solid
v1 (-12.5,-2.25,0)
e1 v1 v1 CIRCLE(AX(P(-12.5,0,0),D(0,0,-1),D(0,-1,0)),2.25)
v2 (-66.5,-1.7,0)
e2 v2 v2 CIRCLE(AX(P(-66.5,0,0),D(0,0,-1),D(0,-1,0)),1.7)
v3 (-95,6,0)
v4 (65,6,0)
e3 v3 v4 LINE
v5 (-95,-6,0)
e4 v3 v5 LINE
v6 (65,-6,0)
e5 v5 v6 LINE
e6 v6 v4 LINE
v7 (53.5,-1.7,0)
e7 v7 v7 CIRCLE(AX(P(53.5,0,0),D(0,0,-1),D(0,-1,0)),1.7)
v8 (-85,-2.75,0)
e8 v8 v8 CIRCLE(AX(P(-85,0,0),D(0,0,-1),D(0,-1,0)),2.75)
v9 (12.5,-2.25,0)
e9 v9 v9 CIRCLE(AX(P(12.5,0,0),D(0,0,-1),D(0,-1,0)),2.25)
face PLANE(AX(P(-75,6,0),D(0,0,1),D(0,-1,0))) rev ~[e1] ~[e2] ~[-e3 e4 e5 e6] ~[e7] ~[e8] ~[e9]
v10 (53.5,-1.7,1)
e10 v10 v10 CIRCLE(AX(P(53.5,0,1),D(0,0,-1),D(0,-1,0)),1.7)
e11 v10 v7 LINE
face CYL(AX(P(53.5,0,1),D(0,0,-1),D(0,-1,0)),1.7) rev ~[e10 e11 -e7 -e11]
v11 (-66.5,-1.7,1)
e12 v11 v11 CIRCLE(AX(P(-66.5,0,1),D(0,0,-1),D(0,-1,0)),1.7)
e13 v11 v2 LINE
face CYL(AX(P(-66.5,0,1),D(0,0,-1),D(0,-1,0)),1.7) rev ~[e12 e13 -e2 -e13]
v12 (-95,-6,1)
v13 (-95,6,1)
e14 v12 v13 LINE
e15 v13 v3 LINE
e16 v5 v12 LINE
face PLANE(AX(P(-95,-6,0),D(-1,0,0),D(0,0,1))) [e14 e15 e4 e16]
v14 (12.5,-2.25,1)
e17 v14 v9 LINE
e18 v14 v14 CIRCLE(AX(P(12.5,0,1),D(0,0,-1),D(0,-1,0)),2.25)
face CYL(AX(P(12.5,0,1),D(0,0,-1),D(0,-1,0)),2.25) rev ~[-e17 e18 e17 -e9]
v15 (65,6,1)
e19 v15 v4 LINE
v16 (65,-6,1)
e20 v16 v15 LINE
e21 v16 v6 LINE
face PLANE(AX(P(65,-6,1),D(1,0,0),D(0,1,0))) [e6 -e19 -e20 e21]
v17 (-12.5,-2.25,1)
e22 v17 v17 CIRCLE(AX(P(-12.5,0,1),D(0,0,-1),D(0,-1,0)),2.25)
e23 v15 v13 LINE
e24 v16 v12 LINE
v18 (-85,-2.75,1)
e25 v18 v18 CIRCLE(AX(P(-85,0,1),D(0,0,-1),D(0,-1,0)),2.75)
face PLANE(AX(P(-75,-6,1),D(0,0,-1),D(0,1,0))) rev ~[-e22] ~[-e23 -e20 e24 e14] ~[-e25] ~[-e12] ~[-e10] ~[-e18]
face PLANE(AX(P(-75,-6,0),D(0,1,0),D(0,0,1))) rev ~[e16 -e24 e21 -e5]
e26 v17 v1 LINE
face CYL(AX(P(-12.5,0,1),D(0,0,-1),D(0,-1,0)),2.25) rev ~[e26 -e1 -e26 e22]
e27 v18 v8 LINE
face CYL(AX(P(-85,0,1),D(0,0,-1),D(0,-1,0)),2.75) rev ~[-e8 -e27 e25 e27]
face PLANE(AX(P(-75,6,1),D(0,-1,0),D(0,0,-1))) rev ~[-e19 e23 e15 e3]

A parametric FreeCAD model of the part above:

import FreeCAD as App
import Part
import Sketcher
from FreeCAD import Vector
Q = App.Units.Quantity


def add_polygon(sketch, points):
    """Adds a closed chain of lines whose ends are joined by coincident constraints."""
    first, n = sketch.GeometryCount, len(points)
    for a, b in zip(points, points[1:] + points[:1]):
        sketch.addGeometry(Part.LineSegment(App.Vector(*a, 0), App.Vector(*b, 0)), False)
    for i in range(n):
        sketch.addConstraint(Sketcher.Constraint("Coincident", first + i, 2, first + (i + 1) % n, 1))

doc = App.newDocument("Part")
body = doc.addObject("PartDesign::Body", "Body")

sketch1 = doc.addObject("Sketcher::SketchObject", "Sketch")
body.addObject(sketch1)
sketch1.AttachmentSupport = (doc.XY_Plane, [""])
sketch1.MapMode = "FlatFace"
add_polygon(sketch1, [(-75, 6), (-75, -6), (75, -6), (75, 6)])
sketch1.addConstraint(Sketcher.Constraint("Vertical", 0))
sketch1.addConstraint(Sketcher.Constraint("Horizontal", 1))
sketch1.addConstraint(Sketcher.Constraint("Vertical", 2))
sketch1.addConstraint(Sketcher.Constraint("Horizontal", 3))
sketch1.addConstraint(Sketcher.Constraint("Symmetric", 0, 2, 2, 2, -1, 1))
sketch1.addConstraint(Sketcher.Constraint("DistanceX", 1, 1, 1, 2, Q("150 mm")))
sketch1.addConstraint(Sketcher.Constraint("DistanceY", 0, 2, 0, 1, Q("12 mm")))
pad1 = doc.addObject("PartDesign::Pad", "Pad")
body.addObject(pad1)
pad1.Profile = sketch1
pad1.Length = 1

sketch2 = doc.addObject("Sketcher::SketchObject", "Sketch001")
body.addObject(sketch2)
sketch2.AttachmentSupport = (doc.XY_Plane, [""])
sketch2.MapMode = "FlatFace"
sketch2.AttachmentOffset = App.Placement(Vector(0, 0, 1), App.Rotation())
sketch2.addGeometry(Part.Circle(Vector(-66.5, 0, 0), Vector(0, 0, 1), 1.7), False)
sketch2.addGeometry(Part.Circle(Vector(53.5, 0, 0), Vector(0, 0, 1), 1.7), False)
sketch2.addConstraint(Sketcher.Constraint("Equal", 0, 1))
sketch2.addConstraint(Sketcher.Constraint("PointOnObject", 0, 3, -1))
sketch2.addConstraint(Sketcher.Constraint("PointOnObject", 1, 3, -1))
sketch2.addConstraint(Sketcher.Constraint("Diameter", 0, Q("3.4 mm")))
sketch2.addConstraint(Sketcher.Constraint("DistanceX", 0, 3, 1, 3, Q("120 mm")))
sketch2.addConstraint(Sketcher.Constraint("DistanceX", 0, 3, -1, 1, Q("66.5 mm")))
doc.recompute()
hole = doc.addObject("PartDesign::Hole", "Hole")
body.addObject(hole)
hole.Profile = sketch2
hole.ThreadType = "None"
hole.Diameter = 3.4
hole.DepthType = "Dimension"
hole.Depth = 8
hole.DrillPoint = "Angled"
hole.DrillPointAngle = 118

sketch3 = doc.addObject("Sketcher::SketchObject", "Sketch002")
body.addObject(sketch3)
sketch3.AttachmentSupport = (doc.XY_Plane, [""])
sketch3.MapMode = "FlatFace"
sketch3.AttachmentOffset = App.Placement(Vector(0, 0, 1), App.Rotation())
sketch3.addGeometry(Part.Circle(Vector(-12.5, 0, 0), Vector(0, 0, 1), 2.2), False)
sketch3.addGeometry(Part.Circle(Vector(12.5, 0, 0), Vector(0, 0, 1), 2.2), False)
sketch3.addConstraint(Sketcher.Constraint("Equal", 0, 1))
sketch3.addConstraint(Sketcher.Constraint("Symmetric", 0, 3, 1, 3, -1, 1))
sketch3.addConstraint(Sketcher.Constraint("PointOnObject", 0, 3, -1))
sketch3.addConstraint(Sketcher.Constraint("Diameter", 0, Q("4.5 mm")))
sketch3.addConstraint(Sketcher.Constraint("DistanceX", 0, 3, 1, 3, Q("25 mm")))
doc.recompute()
hole2 = doc.addObject("PartDesign::Hole", "Hole001")
body.addObject(hole2)
hole2.Profile = sketch3
hole2.ThreadType = "None"
hole2.Diameter = 4.5
hole2.DepthType = "Dimension"
hole2.Depth = 8
hole2.DrillPoint = "Angled"
hole2.DrillPointAngle = 118

sketch4 = doc.addObject("Sketcher::SketchObject", "Sketch003")
body.addObject(sketch4)
sketch4.AttachmentSupport = (doc.YZ_Plane, [""])
sketch4.MapMode = "FlatFace"
sketch4.AttachmentOffset = App.Placement(Vector(0, 0, -75), App.Rotation())
add_polygon(sketch4, [(-6, 0), (-6, 1), (6, 1), (6, 0)])
sketch4.addConstraint(Sketcher.Constraint("Vertical", 0))
sketch4.addConstraint(Sketcher.Constraint("Horizontal", 1))
sketch4.addConstraint(Sketcher.Constraint("Vertical", 2))
sketch4.addConstraint(Sketcher.Constraint("Horizontal", 3))
sketch4.addConstraint(Sketcher.Constraint("Symmetric", 2, 2, 3, 2, -1, 1))
sketch4.addConstraint(Sketcher.Constraint("DistanceX", 1, 1, 1, 2, Q("12 mm")))
sketch4.addConstraint(Sketcher.Constraint("DistanceY", 0, 1, 0, 2, Q("1 mm")))
pad2 = doc.addObject("PartDesign::Pad", "Pad001")
body.addObject(pad2)
pad2.Profile = sketch4
pad2.Length = 20
pad2.Reversed = True

sketch5 = doc.addObject("Sketcher::SketchObject", "Sketch004")
body.addObject(sketch5)
sketch5.AttachmentSupport = (doc.XY_Plane, [""])
sketch5.MapMode = "FlatFace"
sketch5.AttachmentOffset = App.Placement(Vector(0, 0, 1), App.Rotation())
sketch5.addGeometry(Part.Circle(Vector(-85, 0, 0), Vector(0, 0, 1), 2.8), False)
sketch5.addConstraint(Sketcher.Constraint("PointOnObject", 0, 3, -1))
sketch5.addConstraint(Sketcher.Constraint("Diameter", 0, Q("5.5 mm")))
sketch5.addConstraint(Sketcher.Constraint("DistanceX", 0, 3, -1, 1, Q("85 mm")))
doc.recompute()
hole3 = doc.addObject("PartDesign::Hole", "Hole002")
body.addObject(hole3)
hole3.Profile = sketch5
hole3.ThreadType = "None"
hole3.Diameter = 5.5
hole3.DepthType = "Dimension"
hole3.Depth = 8
hole3.DrillPoint = "Angled"
hole3.DrillPointAngle = 118

sketch6 = doc.addObject("Sketcher::SketchObject", "Sketch005")
body.addObject(sketch6)
sketch6.AttachmentSupport = (doc.XY_Plane, [""])
sketch6.MapMode = "FlatFace"
sketch6.AttachmentOffset = App.Placement(Vector(0, 0, 1), App.Rotation())
add_polygon(sketch6, [(65, -6), (75, -6), (75, 6), (65, 6)])
sketch6.addConstraint(Sketcher.Constraint("Horizontal", 0))
sketch6.addConstraint(Sketcher.Constraint("Vertical", 1))
sketch6.addConstraint(Sketcher.Constraint("Horizontal", 2))
sketch6.addConstraint(Sketcher.Constraint("Vertical", 3))
sketch6.addConstraint(Sketcher.Constraint("DistanceX", 0, 1, 0, 2, Q("10 mm")))
sketch6.addConstraint(Sketcher.Constraint("DistanceY", 1, 1, 1, 2, Q("12 mm")))
sketch6.addConstraint(Sketcher.Constraint("DistanceX", -1, 1, 0, 2, Q("75 mm")))
sketch6.addConstraint(Sketcher.Constraint("DistanceY", 0, 2, -1, 1, Q("6 mm")))
pocket1 = doc.addObject("PartDesign::Pocket", "Pocket")
body.addObject(pocket1)
pocket1.Profile = sketch6
pocket1.Length = 10

doc.recompute()
